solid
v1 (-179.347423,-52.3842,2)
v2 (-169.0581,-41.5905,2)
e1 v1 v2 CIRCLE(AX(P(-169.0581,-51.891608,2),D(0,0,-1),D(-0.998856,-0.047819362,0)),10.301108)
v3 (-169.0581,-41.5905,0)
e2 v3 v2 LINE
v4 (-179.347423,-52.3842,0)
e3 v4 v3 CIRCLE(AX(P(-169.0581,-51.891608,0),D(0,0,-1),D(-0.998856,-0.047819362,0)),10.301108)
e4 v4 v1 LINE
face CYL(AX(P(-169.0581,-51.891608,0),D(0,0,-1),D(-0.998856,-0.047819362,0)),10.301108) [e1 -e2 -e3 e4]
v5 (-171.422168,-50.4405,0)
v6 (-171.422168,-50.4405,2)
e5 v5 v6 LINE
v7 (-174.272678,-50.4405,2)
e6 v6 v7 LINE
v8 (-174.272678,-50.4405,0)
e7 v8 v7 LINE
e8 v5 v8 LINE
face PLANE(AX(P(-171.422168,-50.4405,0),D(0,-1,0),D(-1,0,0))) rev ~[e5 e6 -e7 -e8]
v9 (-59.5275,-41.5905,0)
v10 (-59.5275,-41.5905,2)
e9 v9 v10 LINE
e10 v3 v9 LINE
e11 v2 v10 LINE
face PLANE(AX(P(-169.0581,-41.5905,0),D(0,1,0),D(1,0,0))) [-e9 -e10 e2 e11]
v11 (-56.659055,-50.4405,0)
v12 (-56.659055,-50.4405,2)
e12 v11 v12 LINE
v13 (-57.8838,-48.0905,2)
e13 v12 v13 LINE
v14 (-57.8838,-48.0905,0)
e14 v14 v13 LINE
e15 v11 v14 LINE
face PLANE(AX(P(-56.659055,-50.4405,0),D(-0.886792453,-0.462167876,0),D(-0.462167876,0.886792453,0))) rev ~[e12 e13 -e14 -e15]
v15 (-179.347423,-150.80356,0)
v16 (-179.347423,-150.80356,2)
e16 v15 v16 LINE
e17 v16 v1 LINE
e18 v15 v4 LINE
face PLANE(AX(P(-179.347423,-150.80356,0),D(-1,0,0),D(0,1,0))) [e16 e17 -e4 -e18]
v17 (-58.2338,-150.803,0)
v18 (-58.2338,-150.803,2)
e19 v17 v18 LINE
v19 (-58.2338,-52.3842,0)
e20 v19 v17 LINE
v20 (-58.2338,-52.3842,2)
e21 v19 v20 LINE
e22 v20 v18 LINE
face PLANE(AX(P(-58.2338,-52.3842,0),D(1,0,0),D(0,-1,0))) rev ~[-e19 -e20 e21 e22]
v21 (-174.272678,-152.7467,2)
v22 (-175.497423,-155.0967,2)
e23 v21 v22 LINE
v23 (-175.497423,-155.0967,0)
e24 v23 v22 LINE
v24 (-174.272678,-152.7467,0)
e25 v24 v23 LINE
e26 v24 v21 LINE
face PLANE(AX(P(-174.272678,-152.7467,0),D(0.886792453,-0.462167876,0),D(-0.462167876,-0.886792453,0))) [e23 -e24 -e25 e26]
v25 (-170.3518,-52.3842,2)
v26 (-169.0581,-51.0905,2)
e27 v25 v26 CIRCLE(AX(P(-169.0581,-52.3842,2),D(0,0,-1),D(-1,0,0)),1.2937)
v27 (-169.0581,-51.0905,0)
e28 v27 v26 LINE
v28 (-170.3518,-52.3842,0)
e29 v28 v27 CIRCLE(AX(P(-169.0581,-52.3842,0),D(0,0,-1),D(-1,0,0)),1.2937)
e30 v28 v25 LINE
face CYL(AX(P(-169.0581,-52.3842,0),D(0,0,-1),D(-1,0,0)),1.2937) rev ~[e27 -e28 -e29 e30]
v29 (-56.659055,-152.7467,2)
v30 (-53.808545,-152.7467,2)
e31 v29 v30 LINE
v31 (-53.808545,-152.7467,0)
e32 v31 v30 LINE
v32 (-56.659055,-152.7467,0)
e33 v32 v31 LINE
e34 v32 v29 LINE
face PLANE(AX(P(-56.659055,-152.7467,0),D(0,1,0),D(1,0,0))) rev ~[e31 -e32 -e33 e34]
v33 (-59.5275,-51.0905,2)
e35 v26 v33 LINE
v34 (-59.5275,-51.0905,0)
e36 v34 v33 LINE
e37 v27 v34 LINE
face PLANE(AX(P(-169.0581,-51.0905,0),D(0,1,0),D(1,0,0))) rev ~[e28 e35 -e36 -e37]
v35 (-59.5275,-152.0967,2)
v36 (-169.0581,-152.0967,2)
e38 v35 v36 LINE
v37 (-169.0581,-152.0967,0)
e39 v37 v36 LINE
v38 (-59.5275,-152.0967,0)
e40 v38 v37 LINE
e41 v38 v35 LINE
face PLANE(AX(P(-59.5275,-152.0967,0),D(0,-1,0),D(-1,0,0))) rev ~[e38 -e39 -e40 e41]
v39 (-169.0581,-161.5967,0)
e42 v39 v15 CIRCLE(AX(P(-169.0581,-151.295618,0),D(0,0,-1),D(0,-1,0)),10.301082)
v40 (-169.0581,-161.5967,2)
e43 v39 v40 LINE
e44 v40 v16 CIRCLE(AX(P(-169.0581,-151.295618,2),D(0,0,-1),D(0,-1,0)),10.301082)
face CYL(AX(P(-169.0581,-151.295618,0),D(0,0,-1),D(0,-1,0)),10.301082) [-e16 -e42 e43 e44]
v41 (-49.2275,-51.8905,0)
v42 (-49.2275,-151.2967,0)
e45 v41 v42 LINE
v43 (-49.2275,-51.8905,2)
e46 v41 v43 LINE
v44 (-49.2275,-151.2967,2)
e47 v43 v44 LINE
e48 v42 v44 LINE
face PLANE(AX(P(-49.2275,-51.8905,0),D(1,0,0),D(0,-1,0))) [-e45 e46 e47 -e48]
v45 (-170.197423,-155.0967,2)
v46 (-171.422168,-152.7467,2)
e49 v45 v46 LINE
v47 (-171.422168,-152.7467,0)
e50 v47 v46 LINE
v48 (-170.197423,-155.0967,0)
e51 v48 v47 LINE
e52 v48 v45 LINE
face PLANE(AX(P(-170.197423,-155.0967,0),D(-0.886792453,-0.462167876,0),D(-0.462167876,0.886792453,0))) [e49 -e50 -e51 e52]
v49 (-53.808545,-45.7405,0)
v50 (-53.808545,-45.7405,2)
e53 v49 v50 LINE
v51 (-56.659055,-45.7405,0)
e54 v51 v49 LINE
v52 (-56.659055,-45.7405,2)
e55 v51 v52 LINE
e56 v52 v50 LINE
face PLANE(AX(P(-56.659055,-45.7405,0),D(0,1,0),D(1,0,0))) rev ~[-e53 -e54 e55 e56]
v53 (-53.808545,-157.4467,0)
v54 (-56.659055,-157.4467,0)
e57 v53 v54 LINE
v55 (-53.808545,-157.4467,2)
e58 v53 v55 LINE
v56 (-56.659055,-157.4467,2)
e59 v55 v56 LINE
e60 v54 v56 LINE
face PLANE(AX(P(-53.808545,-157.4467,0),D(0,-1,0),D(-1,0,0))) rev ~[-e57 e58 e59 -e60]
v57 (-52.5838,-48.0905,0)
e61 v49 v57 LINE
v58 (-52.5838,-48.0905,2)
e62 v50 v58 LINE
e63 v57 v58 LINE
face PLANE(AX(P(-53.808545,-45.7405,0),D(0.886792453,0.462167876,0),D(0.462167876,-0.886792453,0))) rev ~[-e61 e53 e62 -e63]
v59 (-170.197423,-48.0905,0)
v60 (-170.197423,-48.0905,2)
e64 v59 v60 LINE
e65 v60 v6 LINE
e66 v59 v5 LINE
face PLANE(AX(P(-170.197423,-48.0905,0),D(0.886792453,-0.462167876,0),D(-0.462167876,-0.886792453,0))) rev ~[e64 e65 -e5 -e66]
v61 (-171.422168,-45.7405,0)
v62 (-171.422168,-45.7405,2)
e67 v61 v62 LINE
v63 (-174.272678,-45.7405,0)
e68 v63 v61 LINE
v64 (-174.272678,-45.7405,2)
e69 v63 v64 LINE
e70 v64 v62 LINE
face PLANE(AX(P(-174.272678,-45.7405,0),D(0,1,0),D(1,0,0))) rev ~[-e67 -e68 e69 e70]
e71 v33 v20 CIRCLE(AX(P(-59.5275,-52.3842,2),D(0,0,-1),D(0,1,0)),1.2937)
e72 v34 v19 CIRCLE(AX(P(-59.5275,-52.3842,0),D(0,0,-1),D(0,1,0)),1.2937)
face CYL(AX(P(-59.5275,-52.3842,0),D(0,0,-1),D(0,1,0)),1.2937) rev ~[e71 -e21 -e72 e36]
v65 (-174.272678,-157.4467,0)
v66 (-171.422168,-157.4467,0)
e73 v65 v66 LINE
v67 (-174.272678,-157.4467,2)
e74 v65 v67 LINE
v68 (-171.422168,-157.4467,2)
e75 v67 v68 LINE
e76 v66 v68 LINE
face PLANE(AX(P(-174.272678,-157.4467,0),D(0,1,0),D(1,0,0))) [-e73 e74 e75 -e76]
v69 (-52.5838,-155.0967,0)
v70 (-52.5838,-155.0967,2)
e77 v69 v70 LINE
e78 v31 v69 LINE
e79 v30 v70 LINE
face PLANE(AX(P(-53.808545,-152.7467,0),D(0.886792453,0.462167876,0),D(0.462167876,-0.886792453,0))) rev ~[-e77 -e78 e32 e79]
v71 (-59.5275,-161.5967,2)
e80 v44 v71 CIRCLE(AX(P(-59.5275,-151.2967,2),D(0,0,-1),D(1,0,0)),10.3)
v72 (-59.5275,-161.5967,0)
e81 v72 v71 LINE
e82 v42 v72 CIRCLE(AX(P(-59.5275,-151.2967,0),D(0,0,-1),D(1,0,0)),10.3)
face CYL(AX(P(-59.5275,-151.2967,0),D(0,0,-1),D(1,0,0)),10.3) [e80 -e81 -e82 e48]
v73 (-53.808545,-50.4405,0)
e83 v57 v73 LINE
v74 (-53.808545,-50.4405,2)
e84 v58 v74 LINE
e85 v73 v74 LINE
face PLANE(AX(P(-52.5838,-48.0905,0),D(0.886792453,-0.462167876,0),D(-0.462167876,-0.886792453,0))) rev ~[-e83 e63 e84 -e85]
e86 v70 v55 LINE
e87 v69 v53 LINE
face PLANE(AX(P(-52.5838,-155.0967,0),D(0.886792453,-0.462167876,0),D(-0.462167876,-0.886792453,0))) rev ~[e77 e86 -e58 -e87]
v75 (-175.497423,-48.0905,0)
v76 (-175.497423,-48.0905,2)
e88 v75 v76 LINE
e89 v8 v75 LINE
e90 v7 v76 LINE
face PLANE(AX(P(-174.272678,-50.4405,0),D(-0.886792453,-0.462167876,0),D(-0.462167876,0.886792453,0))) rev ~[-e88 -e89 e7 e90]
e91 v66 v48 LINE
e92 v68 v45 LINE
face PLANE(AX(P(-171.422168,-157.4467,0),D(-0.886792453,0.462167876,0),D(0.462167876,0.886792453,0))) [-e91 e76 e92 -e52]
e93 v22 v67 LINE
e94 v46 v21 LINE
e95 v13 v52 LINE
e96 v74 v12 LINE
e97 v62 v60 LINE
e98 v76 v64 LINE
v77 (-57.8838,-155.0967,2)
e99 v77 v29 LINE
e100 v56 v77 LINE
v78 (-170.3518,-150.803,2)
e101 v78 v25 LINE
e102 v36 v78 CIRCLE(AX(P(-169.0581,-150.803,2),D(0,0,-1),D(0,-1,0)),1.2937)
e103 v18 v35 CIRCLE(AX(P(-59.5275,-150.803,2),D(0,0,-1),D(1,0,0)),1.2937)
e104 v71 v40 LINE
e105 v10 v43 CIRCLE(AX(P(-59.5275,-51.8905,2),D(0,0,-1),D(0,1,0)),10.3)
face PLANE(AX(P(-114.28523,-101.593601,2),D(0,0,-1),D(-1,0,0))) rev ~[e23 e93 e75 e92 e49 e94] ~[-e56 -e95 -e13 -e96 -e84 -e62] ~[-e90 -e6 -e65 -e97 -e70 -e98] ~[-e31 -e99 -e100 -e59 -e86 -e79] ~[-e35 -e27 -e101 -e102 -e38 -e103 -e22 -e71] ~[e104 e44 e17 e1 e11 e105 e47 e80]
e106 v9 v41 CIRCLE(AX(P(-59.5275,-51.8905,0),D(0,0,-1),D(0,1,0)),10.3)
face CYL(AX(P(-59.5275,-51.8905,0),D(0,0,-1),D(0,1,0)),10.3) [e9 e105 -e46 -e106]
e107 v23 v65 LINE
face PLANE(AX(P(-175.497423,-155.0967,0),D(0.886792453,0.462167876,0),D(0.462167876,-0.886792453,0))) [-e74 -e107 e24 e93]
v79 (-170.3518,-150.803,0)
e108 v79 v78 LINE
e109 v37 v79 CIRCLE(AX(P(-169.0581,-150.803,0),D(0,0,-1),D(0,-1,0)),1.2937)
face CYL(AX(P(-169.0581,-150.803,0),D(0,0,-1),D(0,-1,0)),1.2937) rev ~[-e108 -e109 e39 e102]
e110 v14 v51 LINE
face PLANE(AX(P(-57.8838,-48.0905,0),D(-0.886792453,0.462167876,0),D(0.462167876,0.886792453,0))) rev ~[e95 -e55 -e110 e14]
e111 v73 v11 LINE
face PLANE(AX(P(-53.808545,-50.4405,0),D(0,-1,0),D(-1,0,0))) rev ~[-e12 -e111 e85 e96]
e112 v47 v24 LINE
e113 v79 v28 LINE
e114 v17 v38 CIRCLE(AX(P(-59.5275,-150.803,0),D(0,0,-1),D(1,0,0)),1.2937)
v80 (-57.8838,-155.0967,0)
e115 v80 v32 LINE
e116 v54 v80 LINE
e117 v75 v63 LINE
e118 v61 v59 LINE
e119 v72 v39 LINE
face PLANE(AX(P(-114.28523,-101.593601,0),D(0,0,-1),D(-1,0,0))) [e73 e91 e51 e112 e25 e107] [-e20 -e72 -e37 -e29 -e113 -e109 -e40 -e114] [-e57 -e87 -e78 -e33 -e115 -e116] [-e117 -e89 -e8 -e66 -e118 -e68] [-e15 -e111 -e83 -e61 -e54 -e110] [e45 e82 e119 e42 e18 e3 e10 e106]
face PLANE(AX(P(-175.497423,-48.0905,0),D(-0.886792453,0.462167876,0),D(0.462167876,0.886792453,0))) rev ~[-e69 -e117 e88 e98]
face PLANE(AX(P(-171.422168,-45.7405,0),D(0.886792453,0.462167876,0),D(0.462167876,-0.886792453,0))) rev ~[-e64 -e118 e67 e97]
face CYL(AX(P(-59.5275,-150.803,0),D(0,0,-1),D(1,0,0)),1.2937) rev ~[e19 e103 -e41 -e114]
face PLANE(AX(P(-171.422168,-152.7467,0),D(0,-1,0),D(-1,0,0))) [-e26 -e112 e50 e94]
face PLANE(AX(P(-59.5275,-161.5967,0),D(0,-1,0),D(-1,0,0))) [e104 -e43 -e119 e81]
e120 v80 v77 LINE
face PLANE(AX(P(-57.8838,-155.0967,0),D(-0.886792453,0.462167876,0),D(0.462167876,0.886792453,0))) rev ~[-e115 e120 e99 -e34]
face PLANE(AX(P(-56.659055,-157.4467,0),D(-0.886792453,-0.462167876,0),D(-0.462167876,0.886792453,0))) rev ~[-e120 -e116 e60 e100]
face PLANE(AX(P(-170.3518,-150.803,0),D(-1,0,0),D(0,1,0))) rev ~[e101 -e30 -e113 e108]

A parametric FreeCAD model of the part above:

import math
import FreeCAD as App
import Part
import Sketcher
Q = App.Units.Quantity

doc = App.newDocument("Part")
body = doc.addObject("PartDesign::Body", "Body")

# Sketch on XY plane
sketch1 = doc.addObject("Sketcher::SketchObject", "Sketch")
body.addObject(sketch1)
sketch1.AttachmentSupport = (doc.XY_Plane, [""])
sketch1.MapMode = "FlatFace"
sketch1.addGeometry([
    Part.LineSegment(App.Vector(-49.2, -151.3, 0), App.Vector(-49.2, -51.9, 0)),  # 0
    Part.ArcOfCircle(Part.Circle(App.Vector(-59.5, -51.9, 0), App.Vector(0, 0, 1), 10.3), math.radians(0), math.radians(90)),  # 1
    Part.LineSegment(App.Vector(-59.5, -41.6, 0), App.Vector(-169.1, -41.6, 0)),  # 2
    Part.ArcOfCircle(Part.Circle(App.Vector(-169.1, -51.9, 0), App.Vector(0, 0, 1), 10.3), math.radians(90), math.radians(183)),  # 3
    Part.LineSegment(App.Vector(-179.3, -52.4, 0), App.Vector(-179.3, -150.8, 0)),  # 4
    Part.ArcOfCircle(Part.Circle(App.Vector(-169.1, -151.3, 0), App.Vector(0, 0, 1), 10.3), math.radians(177), math.radians(270)),  # 5
    Part.LineSegment(App.Vector(-169.1, -161.6, 0), App.Vector(-59.5, -161.6, 0)),  # 6
    Part.ArcOfCircle(Part.Circle(App.Vector(-59.5, -151.3, 0), App.Vector(0, 0, 1), 10.3), math.radians(-90), math.radians(0)),  # 7
    Part.LineSegment(App.Vector(-57.9, -155.1, 0), App.Vector(-56.7, -152.7, 0)),  # 8
    Part.LineSegment(App.Vector(-56.7, -152.7, 0), App.Vector(-53.8, -152.7, 0)),  # 9
    Part.LineSegment(App.Vector(-53.8, -152.7, 0), App.Vector(-52.6, -155.1, 0)),  # 10
    Part.LineSegment(App.Vector(-52.6, -155.1, 0), App.Vector(-53.8, -157.4, 0)),  # 11
    Part.LineSegment(App.Vector(-53.8, -157.4, 0), App.Vector(-56.7, -157.4, 0)),  # 12
    Part.LineSegment(App.Vector(-56.7, -157.4, 0), App.Vector(-57.9, -155.1, 0)),  # 13
    Part.LineSegment(App.Vector(-171.4, -157.4, 0), App.Vector(-174.3, -157.4, 0)),  # 14
    Part.LineSegment(App.Vector(-174.3, -157.4, 0), App.Vector(-175.5, -155.1, 0)),  # 15
    Part.LineSegment(App.Vector(-175.5, -155.1, 0), App.Vector(-174.3, -152.7, 0)),  # 16
    Part.LineSegment(App.Vector(-174.3, -152.7, 0), App.Vector(-171.4, -152.7, 0)),  # 17
    Part.LineSegment(App.Vector(-171.4, -152.7, 0), App.Vector(-170.2, -155.1, 0)),  # 18
    Part.LineSegment(App.Vector(-170.2, -155.1, 0), App.Vector(-171.4, -157.4, 0)),  # 19
    Part.LineSegment(App.Vector(-57.9, -48.1, 0), App.Vector(-56.7, -45.7, 0)),  # 20
    Part.LineSegment(App.Vector(-56.7, -45.7, 0), App.Vector(-53.8, -45.7, 0)),  # 21
    Part.LineSegment(App.Vector(-53.8, -45.7, 0), App.Vector(-52.6, -48.1, 0)),  # 22
    Part.LineSegment(App.Vector(-52.6, -48.1, 0), App.Vector(-53.8, -50.4, 0)),  # 23
    Part.LineSegment(App.Vector(-53.8, -50.4, 0), App.Vector(-56.7, -50.4, 0)),  # 24
    Part.LineSegment(App.Vector(-56.7, -50.4, 0), App.Vector(-57.9, -48.1, 0)),  # 25
    Part.LineSegment(App.Vector(-59.5, -152.1, 0), App.Vector(-169.1, -152.1, 0)),  # 26
    Part.ArcOfCircle(Part.Circle(App.Vector(-169.1, -150.8, 0), App.Vector(0, 0, 1), 1.3), math.radians(180), math.radians(270)),  # 27
    Part.LineSegment(App.Vector(-170.4, -150.8, 0), App.Vector(-170.4, -52.4, 0)),  # 28
    Part.ArcOfCircle(Part.Circle(App.Vector(-169.1, -52.4, 0), App.Vector(0, 0, 1), 1.3), math.radians(90), math.radians(180)),  # 29
    Part.LineSegment(App.Vector(-169.1, -51.1, 0), App.Vector(-59.5, -51.1, 0)),  # 30
    Part.ArcOfCircle(Part.Circle(App.Vector(-59.5, -52.4, 0), App.Vector(0, 0, 1), 1.3), math.radians(0), math.radians(90)),  # 31
    Part.LineSegment(App.Vector(-58.2, -52.4, 0), App.Vector(-58.2, -150.8, 0)),  # 32
    Part.ArcOfCircle(Part.Circle(App.Vector(-59.5, -150.8, 0), App.Vector(0, 0, 1), 1.3), math.radians(-90), math.radians(0)),  # 33
    Part.LineSegment(App.Vector(-175.5, -48.1, 0), App.Vector(-174.3, -45.7, 0)),  # 34
    Part.LineSegment(App.Vector(-174.3, -45.7, 0), App.Vector(-171.4, -45.7, 0)),  # 35
    Part.LineSegment(App.Vector(-171.4, -45.7, 0), App.Vector(-170.2, -48.1, 0)),  # 36
    Part.LineSegment(App.Vector(-170.2, -48.1, 0), App.Vector(-171.4, -50.4, 0)),  # 37
    Part.LineSegment(App.Vector(-171.4, -50.4, 0), App.Vector(-174.3, -50.4, 0)),  # 38
    Part.LineSegment(App.Vector(-174.3, -50.4, 0), App.Vector(-175.5, -48.1, 0)),  # 39
], False)
sketch1.addConstraint([
    Sketcher.Constraint("Tangent", 0, 2, 1, 1),
    Sketcher.Constraint("Tangent", 1, 2, 2, 1),
    Sketcher.Constraint("Tangent", 2, 2, 3, 1),
    Sketcher.Constraint("Coincident", 3, 2, 4, 1),
    Sketcher.Constraint("Coincident", 4, 2, 5, 1),
    Sketcher.Constraint("Tangent", 5, 2, 6, 1),
    Sketcher.Constraint("Tangent", 6, 2, 7, 1),
    Sketcher.Constraint("Tangent", 7, 2, 0, 1),
    Sketcher.Constraint("Coincident", 8, 2, 9, 1),
    Sketcher.Constraint("Coincident", 9, 2, 10, 1),
    Sketcher.Constraint("Coincident", 10, 2, 11, 1),
    Sketcher.Constraint("Coincident", 11, 2, 12, 1),
    Sketcher.Constraint("Coincident", 12, 2, 13, 1),
    Sketcher.Constraint("Coincident", 13, 2, 8, 1),
    Sketcher.Constraint("Coincident", 14, 2, 15, 1),
    Sketcher.Constraint("Coincident", 15, 2, 16, 1),
    Sketcher.Constraint("Coincident", 16, 2, 17, 1),
    Sketcher.Constraint("Coincident", 17, 2, 18, 1),
    Sketcher.Constraint("Coincident", 18, 2, 19, 1),
    Sketcher.Constraint("Coincident", 19, 2, 14, 1),
    Sketcher.Constraint("Coincident", 20, 2, 21, 1),
    Sketcher.Constraint("Coincident", 21, 2, 22, 1),
    Sketcher.Constraint("Coincident", 22, 2, 23, 1),
    Sketcher.Constraint("Coincident", 23, 2, 24, 1),
    Sketcher.Constraint("Coincident", 24, 2, 25, 1),
    Sketcher.Constraint("Coincident", 25, 2, 20, 1),
    Sketcher.Constraint("Tangent", 26, 2, 27, 2),
    Sketcher.Constraint("Tangent", 27, 1, 28, 1),
    Sketcher.Constraint("Tangent", 28, 2, 29, 2),
    Sketcher.Constraint("Tangent", 29, 1, 30, 1),
    Sketcher.Constraint("Tangent", 30, 2, 31, 2),
    Sketcher.Constraint("Tangent", 31, 1, 32, 1),
    Sketcher.Constraint("Tangent", 32, 2, 33, 2),
    Sketcher.Constraint("Tangent", 33, 1, 26, 1),
    Sketcher.Constraint("Coincident", 34, 2, 35, 1),
    Sketcher.Constraint("Coincident", 35, 2, 36, 1),
    Sketcher.Constraint("Coincident", 36, 2, 37, 1),
    Sketcher.Constraint("Coincident", 37, 2, 38, 1),
    Sketcher.Constraint("Coincident", 38, 2, 39, 1),
    Sketcher.Constraint("Coincident", 39, 2, 34, 1),
    Sketcher.Constraint("Vertical", 0),
    Sketcher.Constraint("Horizontal", 2),
    Sketcher.Constraint("Vertical", 4),
    Sketcher.Constraint("Horizontal", 6),
    Sketcher.Constraint("Horizontal", 9),
    Sketcher.Constraint("Horizontal", 12),
    Sketcher.Constraint("Horizontal", 14),
    Sketcher.Constraint("Horizontal", 17),
    Sketcher.Constraint("Horizontal", 21),
    Sketcher.Constraint("Horizontal", 24),
    Sketcher.Constraint("Horizontal", 26),
    Sketcher.Constraint("Vertical", 28),
    Sketcher.Constraint("Horizontal", 30),
    Sketcher.Constraint("Vertical", 32),
    Sketcher.Constraint("Horizontal", 35),
    Sketcher.Constraint("Horizontal", 38),
    Sketcher.Constraint("Equal", 1, 7),
    Sketcher.Constraint("Equal", 27, 29),
    Sketcher.Constraint("Equal", 29, 31),
    Sketcher.Constraint("Equal", 31, 33),
    Sketcher.Constraint("Parallel", 8, 11),
    Sketcher.Constraint("Parallel", 10, 13),
    Sketcher.Constraint("Parallel", 13, 15),
    Sketcher.Constraint("Parallel", 11, 16),
    Sketcher.Constraint("Parallel", 15, 18),
    Sketcher.Constraint("Parallel", 16, 19),
    Sketcher.Constraint("Parallel", 19, 20),
    Sketcher.Constraint("Parallel", 18, 22),
    Sketcher.Constraint("Parallel", 20, 23),
    Sketcher.Constraint("Parallel", 22, 25),
    Sketcher.Constraint("Parallel", 23, 34),
    Sketcher.Constraint("Parallel", 25, 36),
    Sketcher.Constraint("Parallel", 34, 37),
    Sketcher.Constraint("Parallel", 36, 39),
    Sketcher.Constraint("Horizontal", 31, 3, 3, 2),
    Sketcher.Constraint("Horizontal", 10, 2, 13, 2),
    Sketcher.Constraint("Horizontal", 12, 2, 14, 2),
    Sketcher.Constraint("Horizontal", 13, 2, 15, 2),
    Sketcher.Constraint("Horizontal", 9, 2, 16, 2),
    Sketcher.Constraint("Horizontal", 15, 2, 18, 2),
    Sketcher.Constraint("Horizontal", 22, 2, 25, 2),
    Sketcher.Constraint("Horizontal", 21, 2, 34, 2),
    Sketcher.Constraint("Horizontal", 25, 2, 36, 2),
    Sketcher.Constraint("Horizontal", 24, 2, 37, 2),
    Sketcher.Constraint("Horizontal", 36, 2, 39, 2),
    Sketcher.Constraint("Vertical", 3, 3, 5, 3),
    Sketcher.Constraint("Vertical", 5, 3, 27, 3),
    Sketcher.Constraint("Vertical", 7, 3, 31, 3),
    Sketcher.Constraint("Vertical", 9, 2, 11, 2),
    Sketcher.Constraint("Vertical", 8, 2, 12, 2),
    Sketcher.Constraint("Vertical", 12, 2, 20, 2),
    Sketcher.Constraint("Vertical", 11, 2, 21, 2),
    Sketcher.Constraint("Vertical", 10, 2, 22, 2),
    Sketcher.Constraint("Vertical", 21, 2, 23, 2),
    Sketcher.Constraint("Vertical", 16, 2, 34, 2),
    Sketcher.Constraint("Vertical", 19, 2, 35, 2),
    Sketcher.Constraint("Equal", 12, 14),
    Sketcher.Constraint("Radius", 1, Q("10.3 mm")),
    Sketcher.Constraint("DistanceY", 18, 2, 26, 2, Q("3 mm")),
    Sketcher.Constraint("DistanceY", 30, 2, 25, 2, Q("3 mm")),
    Sketcher.Constraint("Radius", 27, Q("1.2937 mm")),
    Sketcher.Constraint("DistanceY", 10, 2, 7, 2, Q("3.8 mm")),
    Sketcher.Constraint("DistanceY", 11, 2, 9, 2, Q("4.7 mm")),
    Sketcher.Constraint("DistanceY", 0, 2, 22, 2, Q("3.8 mm")),
    Sketcher.Constraint("DistanceX", 39, 2, 36, 2, Q("5.3 mm")),
    Sketcher.Constraint("Distance", 8, Q("2.65 mm")),
    Sketcher.Constraint("DistanceX", 4, 2, 15, 2, Q("3.85 mm")),
    Sketcher.Constraint("DistanceX", 31, 1, 25, 2, Q("0.35 mm")),
    Sketcher.Constraint("DistanceX", 2, 2, 2, 1, Q("109.5306 mm")),
    Sketcher.Constraint("DistanceY", 0, 1, 0, 2, Q("99.4062 mm")),
    Sketcher.Constraint("DistanceY", 27, 3, -1, 1, Q("150.803 mm")),
    Sketcher.Constraint("Radius", 3, Q("10.301108 mm")),
    Sketcher.Constraint("Radius", 5, Q("10.301082 mm")),
    Sketcher.Constraint("DistanceX", 1, 3, -1, 1, Q("59.5275 mm")),
])
pad1 = doc.addObject("PartDesign::Pad", "Pad")
body.addObject(pad1)
pad1.Profile = sketch1
pad1.Length = 2

doc.recompute()
